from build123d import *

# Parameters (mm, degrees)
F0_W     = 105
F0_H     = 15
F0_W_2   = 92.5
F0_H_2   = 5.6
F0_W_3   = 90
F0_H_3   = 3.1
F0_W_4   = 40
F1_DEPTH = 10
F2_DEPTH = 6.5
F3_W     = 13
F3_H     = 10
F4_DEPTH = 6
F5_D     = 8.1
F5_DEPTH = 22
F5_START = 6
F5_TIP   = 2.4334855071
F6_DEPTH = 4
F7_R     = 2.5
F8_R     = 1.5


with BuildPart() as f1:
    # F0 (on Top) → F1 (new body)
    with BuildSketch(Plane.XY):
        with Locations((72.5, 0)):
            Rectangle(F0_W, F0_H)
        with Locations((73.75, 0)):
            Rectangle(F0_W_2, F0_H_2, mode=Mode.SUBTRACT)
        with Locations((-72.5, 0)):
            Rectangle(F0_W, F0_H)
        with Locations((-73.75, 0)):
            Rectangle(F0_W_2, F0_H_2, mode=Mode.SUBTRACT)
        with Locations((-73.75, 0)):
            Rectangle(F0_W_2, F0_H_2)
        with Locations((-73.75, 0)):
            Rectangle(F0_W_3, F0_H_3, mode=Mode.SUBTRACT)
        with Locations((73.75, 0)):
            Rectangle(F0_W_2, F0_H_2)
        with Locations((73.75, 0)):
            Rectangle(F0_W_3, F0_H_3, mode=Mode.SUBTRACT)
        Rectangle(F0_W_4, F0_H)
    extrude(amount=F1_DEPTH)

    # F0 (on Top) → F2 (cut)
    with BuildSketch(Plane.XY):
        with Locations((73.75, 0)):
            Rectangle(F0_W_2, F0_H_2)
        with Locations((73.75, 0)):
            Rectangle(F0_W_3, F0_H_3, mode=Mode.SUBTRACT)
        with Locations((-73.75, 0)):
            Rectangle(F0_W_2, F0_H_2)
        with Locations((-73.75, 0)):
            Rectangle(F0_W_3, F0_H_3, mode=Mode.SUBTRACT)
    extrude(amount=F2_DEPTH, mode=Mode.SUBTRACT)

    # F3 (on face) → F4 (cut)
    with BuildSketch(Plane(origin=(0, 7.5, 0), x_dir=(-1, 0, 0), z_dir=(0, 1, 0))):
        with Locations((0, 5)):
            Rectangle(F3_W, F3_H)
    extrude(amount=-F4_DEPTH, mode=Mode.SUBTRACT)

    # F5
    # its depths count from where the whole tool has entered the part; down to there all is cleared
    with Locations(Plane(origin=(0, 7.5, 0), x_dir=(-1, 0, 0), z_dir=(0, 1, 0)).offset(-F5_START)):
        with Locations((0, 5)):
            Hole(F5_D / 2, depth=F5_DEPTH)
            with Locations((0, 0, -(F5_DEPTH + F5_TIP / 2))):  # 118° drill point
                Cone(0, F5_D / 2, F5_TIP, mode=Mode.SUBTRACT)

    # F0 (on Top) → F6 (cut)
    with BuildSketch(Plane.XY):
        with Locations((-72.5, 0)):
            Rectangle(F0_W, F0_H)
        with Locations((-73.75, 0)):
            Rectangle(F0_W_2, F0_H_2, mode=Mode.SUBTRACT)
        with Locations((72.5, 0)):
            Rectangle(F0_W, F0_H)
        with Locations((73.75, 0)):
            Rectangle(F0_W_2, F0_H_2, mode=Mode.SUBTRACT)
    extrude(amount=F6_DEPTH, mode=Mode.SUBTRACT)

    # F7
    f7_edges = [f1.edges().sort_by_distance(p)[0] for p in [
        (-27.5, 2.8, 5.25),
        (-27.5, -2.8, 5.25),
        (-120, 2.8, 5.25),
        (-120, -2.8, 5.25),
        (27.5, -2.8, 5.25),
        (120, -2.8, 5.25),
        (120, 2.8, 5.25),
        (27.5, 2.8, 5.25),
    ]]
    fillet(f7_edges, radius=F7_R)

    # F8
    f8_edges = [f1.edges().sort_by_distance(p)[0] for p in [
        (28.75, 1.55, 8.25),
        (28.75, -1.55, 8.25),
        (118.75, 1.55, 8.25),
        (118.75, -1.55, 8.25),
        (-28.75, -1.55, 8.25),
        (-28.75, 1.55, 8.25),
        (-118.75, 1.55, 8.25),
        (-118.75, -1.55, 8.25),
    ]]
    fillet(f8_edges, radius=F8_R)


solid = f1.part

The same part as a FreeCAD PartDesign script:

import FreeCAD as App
import Part
import Sketcher
from FreeCAD import Vector
Q = App.Units.Quantity


def edges_at(feature, points):
    """Names of the edges that pass closest to the given points."""
    edges = feature.Shape.Edges
    near = lambda p: min(range(len(edges)), key=lambda i: edges[i].distToShape(Part.Vertex(*p))[0])
    return sorted({f"Edge{near(p) + 1}" for p in points})

doc = App.newDocument("Part")
params = doc.addObject("Spreadsheet::Sheet", "Params")
for row, (alias, value) in enumerate([
    ("sketch1_width", "250 mm"),
    ("sketch1_width2", "90 mm"),
    ("sketch1_height", "15 mm"),
    ("sketch1_height2", "3.1 mm"),
    ("pad1_length", "10 mm"),
    ("sketch2_width", "90 mm"),
    ("sketch2_width2", "92.5 mm"),
    ("sketch2_height", "5.6 mm"),
    ("sketch2_height2", "3.1 mm"),
    ("pocket1_length", "6.5 mm"),
    ("sketch3_width", "13 mm"),
    ("sketch3_height", "10 mm"),
    ("pocket2_length", "6 mm"),
    ("sketch4_diameter", "8.1 mm"),
    ("hole_diameter", "8.1 mm"),
    ("hole_depth", "22 mm"),
    ("sketch5_width", "105 mm"),
    ("sketch5_height", "15 mm"),
    ("sketch5_width2", "92.5 mm"),
    ("sketch5_height2", "5.6 mm"),
    ("pocket3_length", "4 mm"),
    ("fillet_radius", "2.5 mm"),
    ("fillet2_radius", "1.5 mm"),
], start=1):
    params.set(f"A{row}", alias)
    params.set(f"B{row}", "=" + value)
    params.setAlias(f"B{row}", alias)

body = doc.addObject("PartDesign::Body", "Body")

sketch1 = body.newObject("Sketcher::SketchObject", "Sketch")
sketch1.AttachmentSupport = (doc.getObject("XY_Plane"), [""])
sketch1.MapMode = "FlatFace"
sketch1.addGeometry([
    Part.LineSegment(Vector(125, -7.5, 0), Vector(125, 7.5, 0)),
    Part.LineSegment(Vector(125, 7.5, 0), Vector(-125, 7.5, 0)),
    Part.LineSegment(Vector(-125, 7.5, 0), Vector(-125, -7.5, 0)),
    Part.LineSegment(Vector(-125, -7.5, 0), Vector(125, -7.5, 0)),
    Part.LineSegment(Vector(118.8, -1.6, 0), Vector(28.8, -1.6, 0)),
    Part.LineSegment(Vector(28.8, -1.6, 0), Vector(28.8, 1.6, 0)),
    Part.LineSegment(Vector(28.8, 1.6, 0), Vector(118.8, 1.6, 0)),
    Part.LineSegment(Vector(118.8, 1.6, 0), Vector(118.8, -1.6, 0)),
    Part.LineSegment(Vector(-118.8, -1.6, 0), Vector(-118.8, 1.6, 0)),
    Part.LineSegment(Vector(-118.8, 1.6, 0), Vector(-28.8, 1.6, 0)),
    Part.LineSegment(Vector(-28.8, 1.6, 0), Vector(-28.8, -1.6, 0)),
    Part.LineSegment(Vector(-28.8, -1.6, 0), Vector(-118.8, -1.6, 0)),
], False)
sketch1.addConstraint([
    Sketcher.Constraint("Coincident", 0, 2, 1, 1),
    Sketcher.Constraint("Coincident", 1, 2, 2, 1),
    Sketcher.Constraint("Coincident", 2, 2, 3, 1),
    Sketcher.Constraint("Coincident", 3, 2, 0, 1),
    Sketcher.Constraint("Coincident", 4, 2, 5, 1),
    Sketcher.Constraint("Coincident", 5, 2, 6, 1),
    Sketcher.Constraint("Coincident", 6, 2, 7, 1),
    Sketcher.Constraint("Coincident", 7, 2, 4, 1),
    Sketcher.Constraint("Coincident", 8, 2, 9, 1),
    Sketcher.Constraint("Coincident", 9, 2, 10, 1),
    Sketcher.Constraint("Coincident", 10, 2, 11, 1),
    Sketcher.Constraint("Coincident", 11, 2, 8, 1),
    Sketcher.Constraint("Vertical", 0),
    Sketcher.Constraint("Horizontal", 1),
    Sketcher.Constraint("Vertical", 2),
    Sketcher.Constraint("Horizontal", 3),
    Sketcher.Constraint("Horizontal", 4),
    Sketcher.Constraint("Vertical", 5),
    Sketcher.Constraint("Horizontal", 6),
    Sketcher.Constraint("Vertical", 7),
    Sketcher.Constraint("Vertical", 8),
    Sketcher.Constraint("Horizontal", 9),
    Sketcher.Constraint("Vertical", 10),
    Sketcher.Constraint("Horizontal", 11),
    Sketcher.Constraint("Symmetric", 0, 2, 2, 2, -1, 1),
    Sketcher.Constraint("Symmetric", 7, 2, 8, 2, -1, 1),
    Sketcher.Constraint("Symmetric", 5, 2, 10, 2, -1, 1),
    Sketcher.Constraint("Horizontal", 6, 2, 8, 2),
    Sketcher.Constraint("DistanceX", 1, 2, 1, 1, Q("250 mm")),
    Sketcher.Constraint("DistanceX", 4, 2, 4, 1, Q("90 mm")),
    Sketcher.Constraint("DistanceY", 0, 1, 0, 2, Q("15 mm")),
    Sketcher.Constraint("DistanceY", 5, 1, 5, 2, Q("3.1 mm")),
    Sketcher.Constraint("DistanceX", 8, 2, 5, 2, Q("147.5 mm")),
])
sketch1.setExpression("Constraints[28]", "Params.sketch1_width")
sketch1.setExpression("Constraints[29]", "Params.sketch1_width2")
sketch1.setExpression("Constraints[30]", "Params.sketch1_height")
sketch1.setExpression("Constraints[31]", "Params.sketch1_height2")
pad1 = body.newObject("PartDesign::Pad", "Pad")
pad1.Profile = sketch1
pad1.setExpression("Length", "Params.pad1_length")

sketch2 = body.newObject("Sketcher::SketchObject", "Sketch001")
sketch2.AttachmentSupport = (doc.getObject("XY_Plane"), [""])
sketch2.MapMode = "FlatFace"
sketch2.addGeometry([
    Part.LineSegment(Vector(27.5, 2.8, 0), Vector(27.5, -2.8, 0)),
    Part.LineSegment(Vector(27.5, -2.8, 0), Vector(120, -2.8, 0)),
    Part.LineSegment(Vector(120, -2.8, 0), Vector(120, 2.8, 0)),
    Part.LineSegment(Vector(120, 2.8, 0), Vector(27.5, 2.8, 0)),
    Part.LineSegment(Vector(118.8, -1.6, 0), Vector(28.8, -1.6, 0)),
    Part.LineSegment(Vector(28.8, -1.6, 0), Vector(28.8, 1.6, 0)),
    Part.LineSegment(Vector(28.8, 1.6, 0), Vector(118.8, 1.6, 0)),
    Part.LineSegment(Vector(118.8, 1.6, 0), Vector(118.8, -1.6, 0)),
    Part.LineSegment(Vector(-120, 2.8, 0), Vector(-120, -2.8, 0)),
    Part.LineSegment(Vector(-120, -2.8, 0), Vector(-27.5, -2.8, 0)),
    Part.LineSegment(Vector(-27.5, -2.8, 0), Vector(-27.5, 2.8, 0)),
    Part.LineSegment(Vector(-27.5, 2.8, 0), Vector(-120, 2.8, 0)),
    Part.LineSegment(Vector(-28.8, -1.6, 0), Vector(-118.8, -1.6, 0)),
    Part.LineSegment(Vector(-118.8, -1.6, 0), Vector(-118.8, 1.6, 0)),
    Part.LineSegment(Vector(-118.8, 1.6, 0), Vector(-28.8, 1.6, 0)),
    Part.LineSegment(Vector(-28.8, 1.6, 0), Vector(-28.8, -1.6, 0)),
], False)
sketch2.addConstraint([
    Sketcher.Constraint("Coincident", 0, 2, 1, 1),
    Sketcher.Constraint("Coincident", 1, 2, 2, 1),
    Sketcher.Constraint("Coincident", 2, 2, 3, 1),
    Sketcher.Constraint("Coincident", 3, 2, 0, 1),
    Sketcher.Constraint("Coincident", 4, 2, 5, 1),
    Sketcher.Constraint("Coincident", 5, 2, 6, 1),
    Sketcher.Constraint("Coincident", 6, 2, 7, 1),
    Sketcher.Constraint("Coincident", 7, 2, 4, 1),
    Sketcher.Constraint("Coincident", 8, 2, 9, 1),
    Sketcher.Constraint("Coincident", 9, 2, 10, 1),
    Sketcher.Constraint("Coincident", 10, 2, 11, 1),
    Sketcher.Constraint("Coincident", 11, 2, 8, 1),
    Sketcher.Constraint("Coincident", 12, 2, 13, 1),
    Sketcher.Constraint("Coincident", 13, 2, 14, 1),
    Sketcher.Constraint("Coincident", 14, 2, 15, 1),
    Sketcher.Constraint("Coincident", 15, 2, 12, 1),
    Sketcher.Constraint("Vertical", 0),
    Sketcher.Constraint("Horizontal", 1),
    Sketcher.Constraint("Vertical", 2),
    Sketcher.Constraint("Horizontal", 3),
    Sketcher.Constraint("Horizontal", 4),
    Sketcher.Constraint("Vertical", 5),
    Sketcher.Constraint("Horizontal", 6),
    Sketcher.Constraint("Vertical", 7),
    Sketcher.Constraint("Vertical", 8),
    Sketcher.Constraint("Horizontal", 9),
    Sketcher.Constraint("Vertical", 10),
    Sketcher.Constraint("Horizontal", 11),
    Sketcher.Constraint("Horizontal", 12),
    Sketcher.Constraint("Vertical", 13),
    Sketcher.Constraint("Horizontal", 14),
    Sketcher.Constraint("Vertical", 15),
    Sketcher.Constraint("Symmetric", 2, 2, 8, 2, -1, 1),
    Sketcher.Constraint("Symmetric", 0, 2, 10, 2, -1, 1),
    Sketcher.Constraint("Symmetric", 6, 2, 12, 2, -1, 1),
    Sketcher.Constraint("Symmetric", 4, 2, 14, 2, -1, 1),
    Sketcher.Constraint("Horizontal", 1, 2, 8, 2),
    Sketcher.Constraint("Horizontal", 7, 2, 12, 2),
    Sketcher.Constraint("DistanceX", 4, 2, 4, 1, Q("90 mm")),
    Sketcher.Constraint("DistanceX", 1, 1, 1, 2, Q("92.5 mm")),
    Sketcher.Constraint("DistanceY", 0, 2, 0, 1, Q("5.6 mm")),
    Sketcher.Constraint("DistanceY", 5, 1, 5, 2, Q("3.1 mm")),
    Sketcher.Constraint("DistanceX", -1, 1, 1, 2, Q("120 mm")),
    Sketcher.Constraint("DistanceX", 14, 2, 5, 2, Q("57.5 mm")),
])
sketch2.setExpression("Constraints[38]", "Params.sketch2_width")
sketch2.setExpression("Constraints[39]", "Params.sketch2_width2")
sketch2.setExpression("Constraints[40]", "Params.sketch2_height")
sketch2.setExpression("Constraints[41]", "Params.sketch2_height2")
pocket1 = body.newObject("PartDesign::Pocket", "Pocket")
pocket1.Profile = sketch2
pocket1.setExpression("Length", "Params.pocket1_length")
pocket1.Reversed = True

sketch3 = body.newObject("Sketcher::SketchObject", "Sketch002")
sketch3.AttachmentSupport = (doc.getObject("XZ_Plane"), [""])
sketch3.MapMode = "FlatFace"
sketch3.AttachmentOffset = App.Placement(Vector(0, 0, -7.5), App.Rotation())
sketch3.addGeometry([
    Part.LineSegment(Vector(6, 10, 0), Vector(6, 0, 0)),
    Part.LineSegment(Vector(6, 0, 0), Vector(-6, 0, 0)),
    Part.LineSegment(Vector(-6, 0, 0), Vector(-6, 10, 0)),
    Part.LineSegment(Vector(-6, 10, 0), Vector(6, 10, 0)),
], False)
sketch3.addConstraint([
    Sketcher.Constraint("Coincident", 0, 2, 1, 1),
    Sketcher.Constraint("Coincident", 1, 2, 2, 1),
    Sketcher.Constraint("Coincident", 2, 2, 3, 1),
    Sketcher.Constraint("Coincident", 3, 2, 0, 1),
    Sketcher.Constraint("Vertical", 0),
    Sketcher.Constraint("Horizontal", 1),
    Sketcher.Constraint("Vertical", 2),
    Sketcher.Constraint("Horizontal", 3),
    Sketcher.Constraint("Symmetric", 0, 2, 1, 2, -1, 1),
    Sketcher.Constraint("DistanceX", 1, 2, 1, 1, Q("13 mm")),
    Sketcher.Constraint("DistanceY", 0, 2, 0, 1, Q("10 mm")),
])
sketch3.setExpression("Constraints[9]", "Params.sketch3_width")
sketch3.setExpression("Constraints[10]", "Params.sketch3_height")
pocket2 = body.newObject("PartDesign::Pocket", "Pocket001")
pocket2.Profile = sketch3
pocket2.setExpression("Length", "Params.pocket2_length")
pocket2.Reversed = True

sketch4 = body.newObject("Sketcher::SketchObject", "Sketch003")
sketch4.AttachmentSupport = (doc.getObject("XZ_Plane"), [""])
sketch4.MapMode = "FlatFace"
sketch4.AttachmentOffset = App.Placement(Vector(0, 0, -1.5), App.Rotation())
sketch4.addGeometry(Part.Circle(Vector(0, 5, 0), Vector(0, 0, 1), 4), False)
sketch4.addConstraint([
    Sketcher.Constraint("PointOnObject", 0, 3, -2),
    Sketcher.Constraint("Diameter", 0, Q("8.1 mm")),
    Sketcher.Constraint("DistanceY", -1, 1, 0, 3, Q("5 mm")),
])
sketch4.setExpression("Constraints[1]", "Params.sketch4_diameter")
doc.recompute()
hole = body.newObject("PartDesign::Hole", "Hole")
hole.Profile = sketch4
hole.ThreadType = "None"
hole.setExpression("Diameter", "Params.hole_diameter")
hole.DepthType = "Dimension"
hole.setExpression("Depth", "Params.hole_depth")
hole.DrillPoint = "Angled"
hole.DrillPointAngle = 118
hole.Reversed = True

sketch5 = body.newObject("Sketcher::SketchObject", "Sketch004")
sketch5.AttachmentSupport = (doc.getObject("XY_Plane"), [""])
sketch5.MapMode = "FlatFace"
sketch5.addGeometry([
    Part.LineSegment(Vector(-125, 8, 0), Vector(-125, -8, 0)),
    Part.LineSegment(Vector(-125, -8, 0), Vector(-20, -8, 0)),
    Part.LineSegment(Vector(-20, -8, 0), Vector(-20, 8, 0)),
    Part.LineSegment(Vector(-20, 8, 0), Vector(-125, 8, 0)),
    Part.LineSegment(Vector(-28, -3, 0), Vector(-120, -3, 0)),
    Part.LineSegment(Vector(-120, -3, 0), Vector(-120, 3, 0)),
    Part.LineSegment(Vector(-120, 3, 0), Vector(-28, 3, 0)),
    Part.LineSegment(Vector(-28, 3, 0), Vector(-28, -3, 0)),
    Part.LineSegment(Vector(20, 8, 0), Vector(20, -8, 0)),
    Part.LineSegment(Vector(20, -8, 0), Vector(125, -8, 0)),
    Part.LineSegment(Vector(125, -8, 0), Vector(125, 8, 0)),
    Part.LineSegment(Vector(125, 8, 0), Vector(20, 8, 0)),
    Part.LineSegment(Vector(120, -3, 0), Vector(28, -3, 0)),
    Part.LineSegment(Vector(28, -3, 0), Vector(28, 3, 0)),
    Part.LineSegment(Vector(28, 3, 0), Vector(120, 3, 0)),
    Part.LineSegment(Vector(120, 3, 0), Vector(120, -3, 0)),
], False)
sketch5.addConstraint([
    Sketcher.Constraint("Coincident", 0, 2, 1, 1),
    Sketcher.Constraint("Coincident", 1, 2, 2, 1),
    Sketcher.Constraint("Coincident", 2, 2, 3, 1),
    Sketcher.Constraint("Coincident", 3, 2, 0, 1),
    Sketcher.Constraint("Coincident", 4, 2, 5, 1),
    Sketcher.Constraint("Coincident", 5, 2, 6, 1),
    Sketcher.Constraint("Coincident", 6, 2, 7, 1),
    Sketcher.Constraint("Coincident", 7, 2, 4, 1),
    Sketcher.Constraint("Coincident", 8, 2, 9, 1),
    Sketcher.Constraint("Coincident", 9, 2, 10, 1),
    Sketcher.Constraint("Coincident", 10, 2, 11, 1),
    Sketcher.Constraint("Coincident", 11, 2, 8, 1),
    Sketcher.Constraint("Coincident", 12, 2, 13, 1),
    Sketcher.Constraint("Coincident", 13, 2, 14, 1),
    Sketcher.Constraint("Coincident", 14, 2, 15, 1),
    Sketcher.Constraint("Coincident", 15, 2, 12, 1),
    Sketcher.Constraint("Vertical", 0),
    Sketcher.Constraint("Horizontal", 1),
    Sketcher.Constraint("Vertical", 2),
    Sketcher.Constraint("Horizontal", 3),
    Sketcher.Constraint("Horizontal", 4),
    Sketcher.Constraint("Vertical", 5),
    Sketcher.Constraint("Horizontal", 6),
    Sketcher.Constraint("Vertical", 7),
    Sketcher.Constraint("Vertical", 8),
    Sketcher.Constraint("Horizontal", 9),
    Sketcher.Constraint("Vertical", 10),
    Sketcher.Constraint("Horizontal", 11),
    Sketcher.Constraint("Horizontal", 12),
    Sketcher.Constraint("Vertical", 13),
    Sketcher.Constraint("Horizontal", 14),
    Sketcher.Constraint("Vertical", 15),
    Sketcher.Constraint("Symmetric", 2, 2, 8, 2, -1, 1),
    Sketcher.Constraint("Symmetric", 0, 2, 10, 2, -1, 1),
    Sketcher.Constraint("Symmetric", 6, 2, 12, 2, -1, 1),
    Sketcher.Constraint("Symmetric", 4, 2, 14, 2, -1, 1),
    Sketcher.Constraint("Horizontal", 1, 2, 8, 2),
    Sketcher.Constraint("Horizontal", 7, 2, 12, 2),
    Sketcher.Constraint("DistanceX", 1, 1, 1, 2, Q("105 mm")),
    Sketcher.Constraint("DistanceY", 0, 2, 0, 1, Q("15 mm")),
    Sketcher.Constraint("DistanceX", 4, 2, 4, 1, Q("92.5 mm")),
    Sketcher.Constraint("DistanceY", 5, 1, 5, 2, Q("5.6 mm")),
    Sketcher.Constraint("DistanceX", 0, 2, -1, 1, Q("125 mm")),
    Sketcher.Constraint("DistanceX", 4, 2, -1, 1, Q("120 mm")),
])
sketch5.setExpression("Constraints[38]", "Params.sketch5_width")
sketch5.setExpression("Constraints[39]", "Params.sketch5_height")
sketch5.setExpression("Constraints[40]", "Params.sketch5_width2")
sketch5.setExpression("Constraints[41]", "Params.sketch5_height2")
pocket3 = body.newObject("PartDesign::Pocket", "Pocket002")
pocket3.Profile = sketch5
pocket3.setExpression("Length", "Params.pocket3_length")
pocket3.Reversed = True
doc.recompute()

fillet = body.newObject("PartDesign::Fillet", "Fillet")
fillet.Base = (pocket3, edges_at(pocket3, [
    (-27.5, 2.8, 5.25),
    (-27.5, -2.8, 5.25),
    (-120, 2.8, 5.25),
    (-120, -2.8, 5.25),
    (27.5, -2.8, 5.25),
    (120, -2.8, 5.25),
    (120, 2.8, 5.25),
    (27.5, 2.8, 5.25),
]))
fillet.setExpression("Radius", "Params.fillet_radius")
doc.recompute()

fillet2 = body.newObject("PartDesign::Fillet", "Fillet001")
fillet2.Base = (fillet, edges_at(fillet, [
    (28.75, 1.55, 8.25),
    (28.75, -1.55, 8.25),
    (118.75, 1.55, 8.25),
    (118.75, -1.55, 8.25),
    (-28.75, -1.55, 8.25),
    (-28.75, 1.55, 8.25),
    (-118.75, 1.55, 8.25),
    (-118.75, -1.55, 8.25),
]))
fillet2.setExpression("Radius", "Params.fillet2_radius")

doc.recompute()
